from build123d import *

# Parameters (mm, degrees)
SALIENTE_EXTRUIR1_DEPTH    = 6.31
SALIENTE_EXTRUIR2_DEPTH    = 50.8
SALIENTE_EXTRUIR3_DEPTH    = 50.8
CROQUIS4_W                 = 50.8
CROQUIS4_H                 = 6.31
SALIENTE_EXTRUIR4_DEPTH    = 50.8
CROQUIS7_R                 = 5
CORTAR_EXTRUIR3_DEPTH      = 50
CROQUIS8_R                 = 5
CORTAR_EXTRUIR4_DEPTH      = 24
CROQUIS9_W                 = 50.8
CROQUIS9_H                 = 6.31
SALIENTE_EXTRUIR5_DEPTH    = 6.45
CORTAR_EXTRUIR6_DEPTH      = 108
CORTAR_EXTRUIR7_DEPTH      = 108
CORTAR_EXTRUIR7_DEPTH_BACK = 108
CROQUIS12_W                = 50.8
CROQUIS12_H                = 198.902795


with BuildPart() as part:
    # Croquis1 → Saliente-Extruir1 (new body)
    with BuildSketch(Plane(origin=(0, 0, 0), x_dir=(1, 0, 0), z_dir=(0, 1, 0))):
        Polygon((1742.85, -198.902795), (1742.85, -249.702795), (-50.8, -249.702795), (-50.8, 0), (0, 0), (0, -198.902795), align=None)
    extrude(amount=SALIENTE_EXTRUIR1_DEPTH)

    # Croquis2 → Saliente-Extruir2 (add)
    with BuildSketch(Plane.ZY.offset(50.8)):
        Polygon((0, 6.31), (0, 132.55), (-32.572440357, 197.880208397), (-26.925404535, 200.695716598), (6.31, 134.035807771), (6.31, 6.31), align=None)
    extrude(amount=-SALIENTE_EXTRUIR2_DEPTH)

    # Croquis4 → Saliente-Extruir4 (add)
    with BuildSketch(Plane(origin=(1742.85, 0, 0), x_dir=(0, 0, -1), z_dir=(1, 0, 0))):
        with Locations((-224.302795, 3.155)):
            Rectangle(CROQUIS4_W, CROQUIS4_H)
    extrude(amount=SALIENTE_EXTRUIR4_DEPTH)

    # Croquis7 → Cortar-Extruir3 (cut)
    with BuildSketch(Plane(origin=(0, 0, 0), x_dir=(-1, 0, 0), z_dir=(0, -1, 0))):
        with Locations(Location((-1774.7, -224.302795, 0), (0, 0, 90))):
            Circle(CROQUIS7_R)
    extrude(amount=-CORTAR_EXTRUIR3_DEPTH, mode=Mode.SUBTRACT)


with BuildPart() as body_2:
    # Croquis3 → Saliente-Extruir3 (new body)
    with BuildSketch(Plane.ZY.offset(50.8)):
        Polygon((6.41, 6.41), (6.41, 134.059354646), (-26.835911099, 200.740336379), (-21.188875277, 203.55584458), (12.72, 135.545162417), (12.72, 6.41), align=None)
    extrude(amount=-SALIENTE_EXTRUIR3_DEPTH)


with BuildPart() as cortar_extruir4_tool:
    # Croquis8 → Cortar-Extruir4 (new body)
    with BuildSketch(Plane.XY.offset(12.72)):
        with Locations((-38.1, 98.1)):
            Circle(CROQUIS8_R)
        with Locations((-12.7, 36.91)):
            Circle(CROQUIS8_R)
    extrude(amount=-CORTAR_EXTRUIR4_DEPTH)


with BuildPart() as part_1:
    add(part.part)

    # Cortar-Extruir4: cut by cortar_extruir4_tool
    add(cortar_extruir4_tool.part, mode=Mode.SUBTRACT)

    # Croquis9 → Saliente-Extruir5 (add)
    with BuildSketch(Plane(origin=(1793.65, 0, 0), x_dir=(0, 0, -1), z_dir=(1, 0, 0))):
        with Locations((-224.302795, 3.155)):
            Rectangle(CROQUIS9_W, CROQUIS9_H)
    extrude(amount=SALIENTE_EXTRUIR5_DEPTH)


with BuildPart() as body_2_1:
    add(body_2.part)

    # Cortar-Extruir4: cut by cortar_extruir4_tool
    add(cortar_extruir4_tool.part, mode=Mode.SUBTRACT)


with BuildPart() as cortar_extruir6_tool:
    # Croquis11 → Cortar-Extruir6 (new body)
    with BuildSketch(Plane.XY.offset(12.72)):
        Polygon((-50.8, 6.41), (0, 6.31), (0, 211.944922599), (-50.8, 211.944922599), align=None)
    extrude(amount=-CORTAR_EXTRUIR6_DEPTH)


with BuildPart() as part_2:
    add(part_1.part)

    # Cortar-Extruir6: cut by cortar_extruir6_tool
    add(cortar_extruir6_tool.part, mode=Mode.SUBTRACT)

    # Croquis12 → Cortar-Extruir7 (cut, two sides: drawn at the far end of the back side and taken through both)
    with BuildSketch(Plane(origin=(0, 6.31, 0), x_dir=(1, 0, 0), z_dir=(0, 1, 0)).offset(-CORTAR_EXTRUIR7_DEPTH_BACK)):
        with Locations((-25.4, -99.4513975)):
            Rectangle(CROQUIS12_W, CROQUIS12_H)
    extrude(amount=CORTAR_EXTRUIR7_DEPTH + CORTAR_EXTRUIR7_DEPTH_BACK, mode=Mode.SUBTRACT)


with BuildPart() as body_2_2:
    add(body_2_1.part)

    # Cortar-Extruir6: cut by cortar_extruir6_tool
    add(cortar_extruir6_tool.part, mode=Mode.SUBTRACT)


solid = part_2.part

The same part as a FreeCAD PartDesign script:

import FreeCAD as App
import Part
import Sketcher

V = App.Vector
Q = App.Units.Quantity


def add_polygon(sketch, points):
    """Adds a closed chain of lines whose ends are joined by coincident constraints."""
    first, n = sketch.GeometryCount, len(points)
    for a, b in zip(points, points[1:] + points[:1]):
        sketch.addGeometry(Part.LineSegment(App.Vector(*a, 0), App.Vector(*b, 0)), False)
    for i in range(n):
        sketch.addConstraint(Sketcher.Constraint("Coincident", first + i, 2, first + (i + 1) % n, 1))

doc = App.newDocument("Part")
body = doc.addObject("PartDesign::Body", "Body")

sketch1 = body.newObject("Sketcher::SketchObject", "Sketch")
sketch1.AttachmentSupport = (doc.getObject("XZ_Plane"), [""])
sketch1.MapMode = "FlatFace"
add_polygon(sketch1, [(1743, 250), (1743, 199), (0, 199), (0, 0), (-51, 0), (-51, 250)])
sketch1.addConstraint([
    Sketcher.Constraint("Vertical", 0),
    Sketcher.Constraint("Horizontal", 1),
    Sketcher.Constraint("Vertical", 2),
    Sketcher.Constraint("Horizontal", 3),
    Sketcher.Constraint("Vertical", 4),
    Sketcher.Constraint("Horizontal", 5),
    Sketcher.Constraint("Coincident", 2, 2, -1, 1),
    Sketcher.Constraint("Equal", 3, 0),
    Sketcher.Constraint("DistanceX", 3, 2, 3, 1, 50.8),
    Sketcher.Constraint("DistanceX", 1, 2, 1, 1, 1742.85),
    Sketcher.Constraint("DistanceY", 2, 2, 2, 1, 198.902795),
])
pad1 = body.newObject("PartDesign::Pad", "Pad")
pad1.Profile = sketch1
pad1.Length = 6.31
pad1.Reversed = True

sketch2 = body.newObject("Sketcher::SketchObject", "Sketch001")
sketch2.AttachmentSupport = (doc.getObject("YZ_Plane"), [""])
sketch2.MapMode = "FlatFace"
sketch2.AttachmentOffset = App.Placement(V(0, 0, -50.8), App.Rotation())
add_polygon(sketch2, [(133, 0), (6, 0), (6, 6), (134, 6), (201, -27), (198, -33)])
sketch2.addConstraint([
    Sketcher.Constraint("Horizontal", 0),
    Sketcher.Constraint("Vertical", 1),
    Sketcher.Constraint("Horizontal", 2),
    Sketcher.Constraint("PointOnObject", 0, 2, -1),
    Sketcher.Constraint("Perpendicular", 3, 4),
    Sketcher.Constraint("Perpendicular", 4, 5),
    Sketcher.Constraint("Distance", 5, 73.0),
    Sketcher.Constraint("Angle", 3, Q("-26.5 deg")),
    Sketcher.Constraint("DistanceX", 0, 2, 0, 1, 126.24),
    Sketcher.Constraint("DistanceY", 1, 1, 1, 2, 6.31),
    Sketcher.Constraint("Distance", 4, 6.31),
    Sketcher.Constraint("DistanceX", -1, 1, 0, 2, 6.31),
])
pad2 = body.newObject("PartDesign::Pad", "Pad001")
pad2.Profile = sketch2
pad2.Length = 50.8

sketch3 = body.newObject("Sketcher::SketchObject", "Sketch002")
sketch3.AttachmentSupport = (doc.getObject("YZ_Plane"), [""])
sketch3.MapMode = "FlatFace"
sketch3.AttachmentOffset = App.Placement(V(0, 0, 1742.85), App.Rotation())
add_polygon(sketch3, [(6, 250), (0, 250), (0, 199), (6, 199)])
sketch3.addConstraint([
    Sketcher.Constraint("Horizontal", 0),
    Sketcher.Constraint("Vertical", 1),
    Sketcher.Constraint("Horizontal", 2),
    Sketcher.Constraint("Vertical", 3),
    Sketcher.Constraint("PointOnObject", 0, 2, -2),
    Sketcher.Constraint("DistanceY", 1, 2, 1, 1, 50.8),
    Sketcher.Constraint("DistanceX", 0, 2, 0, 1, 6.31),
    Sketcher.Constraint("DistanceY", -1, 1, 0, 2, 249.702795),
])
pad3 = body.newObject("PartDesign::Pad", "Pad002")
pad3.Profile = sketch3
pad3.Length = 50.8

sketch4 = body.newObject("Sketcher::SketchObject", "Sketch003")
sketch4.AttachmentSupport = (doc.getObject("XZ_Plane"), [""])
sketch4.MapMode = "FlatFace"
sketch4.addGeometry(Part.Circle(V(1775, 224, 0), V(0, 0, 1), 5), False)
sketch4.addConstraint([
    Sketcher.Constraint("Diameter", 0, 10.0),
    Sketcher.Constraint("DistanceX", -1, 1, 0, 3, 1774.7),
    Sketcher.Constraint("DistanceY", -1, 1, 0, 3, 224.302795),
])
pocket1 = body.newObject("PartDesign::Pocket", "Pocket")
pocket1.Profile = sketch4
pocket1.Length = 50
body2 = doc.addObject("PartDesign::Body", "Body001")

sketch5 = body2.newObject("Sketcher::SketchObject", "Sketch004")
sketch5.AttachmentSupport = (doc.getObject("YZ_Plane001"), [""])
sketch5.MapMode = "FlatFace"
sketch5.AttachmentOffset = App.Placement(V(0, 0, -50.8), App.Rotation())
add_polygon(sketch5, [(134, 6), (6, 6), (6, 13), (136, 13), (204, -21), (201, -27)])
sketch5.addConstraint([
    Sketcher.Constraint("Horizontal", 0),
    Sketcher.Constraint("Vertical", 1),
    Sketcher.Constraint("Horizontal", 2),
    Sketcher.Constraint("Perpendicular", 3, 4),
    Sketcher.Constraint("Perpendicular", 4, 5),
    Sketcher.Constraint("Angle", 3, Q("-26.5 deg")),
    Sketcher.Constraint("DistanceY", 1, 1, 1, 2, 6.31),
    Sketcher.Constraint("Distance", 4, 6.31),
    Sketcher.Constraint("DistanceX", -1, 1, 0, 2, 6.41),
    Sketcher.Constraint("DistanceY", -1, 1, 0, 2, 6.41),
    Sketcher.Constraint("DistanceX", 0, 2, 0, 1, 127.649355),
    Sketcher.Constraint("DistanceY", 4, 2, -1, 1, 26.835911),
])
pad4 = body2.newObject("PartDesign::Pad", "Pad003")
pad4.Profile = sketch5
pad4.Length = 50.8
body3 = doc.addObject("PartDesign::Body", "Body002")
body3.AllowCompound = True

sketch6 = body3.newObject("Sketcher::SketchObject", "Sketch005")
sketch6.AttachmentSupport = (doc.getObject("XY_Plane002"), [""])
sketch6.MapMode = "FlatFace"
sketch6.AttachmentOffset = App.Placement(V(0, 0, 12.72), App.Rotation())
sketch6.addGeometry([
    Part.Circle(V(-38, 98, 0), V(0, 0, 1), 5),
    Part.Circle(V(-13, 37, 0), V(0, 0, 1), 5),
], False)
sketch6.addConstraint([
    Sketcher.Constraint("Equal", 0, 1),
    Sketcher.Constraint("Diameter", 0, 10.0),
    Sketcher.Constraint("DistanceX", 0, 3, -1, 1, 38.1),
    Sketcher.Constraint("DistanceY", -1, 1, 0, 3, 98.1),
    Sketcher.Constraint("DistanceX", 1, 3, -1, 1, 12.7),
    Sketcher.Constraint("DistanceY", -1, 1, 1, 3, 36.91),
])
pad5 = body3.newObject("PartDesign::Pad", "Pad004")
pad5.Profile = sketch6
pad5.Length = 24
pad5.Reversed = True
doc.recompute()

body4 = doc.addObject("PartDesign::Body", "Body003")
body4.BaseFeature = body3
boolean = body.newObject("PartDesign::Boolean", "Boolean")
boolean.Type = "Cut"
boolean.addObjects([body4])
doc.recompute()

sketch7 = body.newObject("Sketcher::SketchObject", "Sketch006")
sketch7.AttachmentSupport = (doc.getObject("YZ_Plane"), [""])
sketch7.MapMode = "FlatFace"
sketch7.AttachmentOffset = App.Placement(V(0, 0, 1793.65), App.Rotation())
add_polygon(sketch7, [(6, 250), (0, 250), (0, 199), (6, 199)])
sketch7.addConstraint([
    Sketcher.Constraint("Horizontal", 0),
    Sketcher.Constraint("Vertical", 1),
    Sketcher.Constraint("Horizontal", 2),
    Sketcher.Constraint("Vertical", 3),
    Sketcher.Constraint("PointOnObject", 0, 2, -2),
    Sketcher.Constraint("DistanceY", 1, 2, 1, 1, 50.8),
    Sketcher.Constraint("DistanceX", 0, 2, 0, 1, 6.31),
    Sketcher.Constraint("DistanceY", -1, 1, 0, 2, 249.702795),
])
pad6 = body.newObject("PartDesign::Pad", "Pad005")
pad6.Profile = sketch7
pad6.Length = 6.45
doc.recompute()

boolean2 = body2.newObject("PartDesign::Boolean", "Boolean001")
boolean2.Type = "Cut"
boolean2.addObjects([body3])
body5 = doc.addObject("PartDesign::Body", "Body004")

sketch8 = body5.newObject("Sketcher::SketchObject", "Sketch007")
sketch8.AttachmentSupport = (doc.getObject("XY_Plane004"), [""])
sketch8.MapMode = "FlatFace"
sketch8.AttachmentOffset = App.Placement(V(0, 0, 12.72), App.Rotation())
add_polygon(sketch8, [(-51, 6), (0, 6), (0, 212), (-51, 212)])
sketch8.addConstraint([
    Sketcher.Constraint("Vertical", 1),
    Sketcher.Constraint("Horizontal", 2),
    Sketcher.Constraint("Vertical", 3),
    Sketcher.Constraint("PointOnObject", 0, 2, -2),
    Sketcher.Constraint("DistanceX", 2, 2, 2, 1, 50.8),
    Sketcher.Constraint("DistanceY", 0, 2, 3, 2, 0.1),
    Sketcher.Constraint("DistanceY", -1, 1, 0, 2, 6.31),
    Sketcher.Constraint("DistanceY", 1, 1, 1, 2, 205.634923),
])
pad7 = body5.newObject("PartDesign::Pad", "Pad006")
pad7.Profile = sketch8
pad7.Length = 108
pad7.Reversed = True
doc.recompute()

body6 = doc.addObject("PartDesign::Body", "Body005")
body6.BaseFeature = body5
boolean3 = body.newObject("PartDesign::Boolean", "Boolean002")
boolean3.Type = "Cut"
boolean3.addObjects([body6])
doc.recompute()

sketch9 = body.newObject("Sketcher::SketchObject", "Sketch008")
sketch9.AttachmentSupport = (doc.getObject("XZ_Plane"), [""])
sketch9.MapMode = "FlatFace"
sketch9.AttachmentOffset = App.Placement(V(0, 0, -6.31), App.Rotation())
add_polygon(sketch9, [(-51, 0), (-51, 199), (0, 199), (0, 0)])
sketch9.addConstraint([
    Sketcher.Constraint("Vertical", 0),
    Sketcher.Constraint("Horizontal", 1),
    Sketcher.Constraint("Vertical", 2),
    Sketcher.Constraint("Horizontal", 3),
    Sketcher.Constraint("Coincident", 2, 2, -1, 1),
    Sketcher.Constraint("DistanceX", 1, 1, 1, 2, 50.8),
    Sketcher.Constraint("DistanceY", 0, 1, 0, 2, 198.902795),
])
pocket2 = body.newObject("PartDesign::Pocket", "Pocket001")
pocket2.Profile = sketch9
pocket2.Type = "ThroughAll"
pocket2.Midplane = True
doc.recompute()

boolean4 = body2.newObject("PartDesign::Boolean", "Boolean003")
boolean4.Type = "Cut"
boolean4.addObjects([body5])

doc.recompute()
